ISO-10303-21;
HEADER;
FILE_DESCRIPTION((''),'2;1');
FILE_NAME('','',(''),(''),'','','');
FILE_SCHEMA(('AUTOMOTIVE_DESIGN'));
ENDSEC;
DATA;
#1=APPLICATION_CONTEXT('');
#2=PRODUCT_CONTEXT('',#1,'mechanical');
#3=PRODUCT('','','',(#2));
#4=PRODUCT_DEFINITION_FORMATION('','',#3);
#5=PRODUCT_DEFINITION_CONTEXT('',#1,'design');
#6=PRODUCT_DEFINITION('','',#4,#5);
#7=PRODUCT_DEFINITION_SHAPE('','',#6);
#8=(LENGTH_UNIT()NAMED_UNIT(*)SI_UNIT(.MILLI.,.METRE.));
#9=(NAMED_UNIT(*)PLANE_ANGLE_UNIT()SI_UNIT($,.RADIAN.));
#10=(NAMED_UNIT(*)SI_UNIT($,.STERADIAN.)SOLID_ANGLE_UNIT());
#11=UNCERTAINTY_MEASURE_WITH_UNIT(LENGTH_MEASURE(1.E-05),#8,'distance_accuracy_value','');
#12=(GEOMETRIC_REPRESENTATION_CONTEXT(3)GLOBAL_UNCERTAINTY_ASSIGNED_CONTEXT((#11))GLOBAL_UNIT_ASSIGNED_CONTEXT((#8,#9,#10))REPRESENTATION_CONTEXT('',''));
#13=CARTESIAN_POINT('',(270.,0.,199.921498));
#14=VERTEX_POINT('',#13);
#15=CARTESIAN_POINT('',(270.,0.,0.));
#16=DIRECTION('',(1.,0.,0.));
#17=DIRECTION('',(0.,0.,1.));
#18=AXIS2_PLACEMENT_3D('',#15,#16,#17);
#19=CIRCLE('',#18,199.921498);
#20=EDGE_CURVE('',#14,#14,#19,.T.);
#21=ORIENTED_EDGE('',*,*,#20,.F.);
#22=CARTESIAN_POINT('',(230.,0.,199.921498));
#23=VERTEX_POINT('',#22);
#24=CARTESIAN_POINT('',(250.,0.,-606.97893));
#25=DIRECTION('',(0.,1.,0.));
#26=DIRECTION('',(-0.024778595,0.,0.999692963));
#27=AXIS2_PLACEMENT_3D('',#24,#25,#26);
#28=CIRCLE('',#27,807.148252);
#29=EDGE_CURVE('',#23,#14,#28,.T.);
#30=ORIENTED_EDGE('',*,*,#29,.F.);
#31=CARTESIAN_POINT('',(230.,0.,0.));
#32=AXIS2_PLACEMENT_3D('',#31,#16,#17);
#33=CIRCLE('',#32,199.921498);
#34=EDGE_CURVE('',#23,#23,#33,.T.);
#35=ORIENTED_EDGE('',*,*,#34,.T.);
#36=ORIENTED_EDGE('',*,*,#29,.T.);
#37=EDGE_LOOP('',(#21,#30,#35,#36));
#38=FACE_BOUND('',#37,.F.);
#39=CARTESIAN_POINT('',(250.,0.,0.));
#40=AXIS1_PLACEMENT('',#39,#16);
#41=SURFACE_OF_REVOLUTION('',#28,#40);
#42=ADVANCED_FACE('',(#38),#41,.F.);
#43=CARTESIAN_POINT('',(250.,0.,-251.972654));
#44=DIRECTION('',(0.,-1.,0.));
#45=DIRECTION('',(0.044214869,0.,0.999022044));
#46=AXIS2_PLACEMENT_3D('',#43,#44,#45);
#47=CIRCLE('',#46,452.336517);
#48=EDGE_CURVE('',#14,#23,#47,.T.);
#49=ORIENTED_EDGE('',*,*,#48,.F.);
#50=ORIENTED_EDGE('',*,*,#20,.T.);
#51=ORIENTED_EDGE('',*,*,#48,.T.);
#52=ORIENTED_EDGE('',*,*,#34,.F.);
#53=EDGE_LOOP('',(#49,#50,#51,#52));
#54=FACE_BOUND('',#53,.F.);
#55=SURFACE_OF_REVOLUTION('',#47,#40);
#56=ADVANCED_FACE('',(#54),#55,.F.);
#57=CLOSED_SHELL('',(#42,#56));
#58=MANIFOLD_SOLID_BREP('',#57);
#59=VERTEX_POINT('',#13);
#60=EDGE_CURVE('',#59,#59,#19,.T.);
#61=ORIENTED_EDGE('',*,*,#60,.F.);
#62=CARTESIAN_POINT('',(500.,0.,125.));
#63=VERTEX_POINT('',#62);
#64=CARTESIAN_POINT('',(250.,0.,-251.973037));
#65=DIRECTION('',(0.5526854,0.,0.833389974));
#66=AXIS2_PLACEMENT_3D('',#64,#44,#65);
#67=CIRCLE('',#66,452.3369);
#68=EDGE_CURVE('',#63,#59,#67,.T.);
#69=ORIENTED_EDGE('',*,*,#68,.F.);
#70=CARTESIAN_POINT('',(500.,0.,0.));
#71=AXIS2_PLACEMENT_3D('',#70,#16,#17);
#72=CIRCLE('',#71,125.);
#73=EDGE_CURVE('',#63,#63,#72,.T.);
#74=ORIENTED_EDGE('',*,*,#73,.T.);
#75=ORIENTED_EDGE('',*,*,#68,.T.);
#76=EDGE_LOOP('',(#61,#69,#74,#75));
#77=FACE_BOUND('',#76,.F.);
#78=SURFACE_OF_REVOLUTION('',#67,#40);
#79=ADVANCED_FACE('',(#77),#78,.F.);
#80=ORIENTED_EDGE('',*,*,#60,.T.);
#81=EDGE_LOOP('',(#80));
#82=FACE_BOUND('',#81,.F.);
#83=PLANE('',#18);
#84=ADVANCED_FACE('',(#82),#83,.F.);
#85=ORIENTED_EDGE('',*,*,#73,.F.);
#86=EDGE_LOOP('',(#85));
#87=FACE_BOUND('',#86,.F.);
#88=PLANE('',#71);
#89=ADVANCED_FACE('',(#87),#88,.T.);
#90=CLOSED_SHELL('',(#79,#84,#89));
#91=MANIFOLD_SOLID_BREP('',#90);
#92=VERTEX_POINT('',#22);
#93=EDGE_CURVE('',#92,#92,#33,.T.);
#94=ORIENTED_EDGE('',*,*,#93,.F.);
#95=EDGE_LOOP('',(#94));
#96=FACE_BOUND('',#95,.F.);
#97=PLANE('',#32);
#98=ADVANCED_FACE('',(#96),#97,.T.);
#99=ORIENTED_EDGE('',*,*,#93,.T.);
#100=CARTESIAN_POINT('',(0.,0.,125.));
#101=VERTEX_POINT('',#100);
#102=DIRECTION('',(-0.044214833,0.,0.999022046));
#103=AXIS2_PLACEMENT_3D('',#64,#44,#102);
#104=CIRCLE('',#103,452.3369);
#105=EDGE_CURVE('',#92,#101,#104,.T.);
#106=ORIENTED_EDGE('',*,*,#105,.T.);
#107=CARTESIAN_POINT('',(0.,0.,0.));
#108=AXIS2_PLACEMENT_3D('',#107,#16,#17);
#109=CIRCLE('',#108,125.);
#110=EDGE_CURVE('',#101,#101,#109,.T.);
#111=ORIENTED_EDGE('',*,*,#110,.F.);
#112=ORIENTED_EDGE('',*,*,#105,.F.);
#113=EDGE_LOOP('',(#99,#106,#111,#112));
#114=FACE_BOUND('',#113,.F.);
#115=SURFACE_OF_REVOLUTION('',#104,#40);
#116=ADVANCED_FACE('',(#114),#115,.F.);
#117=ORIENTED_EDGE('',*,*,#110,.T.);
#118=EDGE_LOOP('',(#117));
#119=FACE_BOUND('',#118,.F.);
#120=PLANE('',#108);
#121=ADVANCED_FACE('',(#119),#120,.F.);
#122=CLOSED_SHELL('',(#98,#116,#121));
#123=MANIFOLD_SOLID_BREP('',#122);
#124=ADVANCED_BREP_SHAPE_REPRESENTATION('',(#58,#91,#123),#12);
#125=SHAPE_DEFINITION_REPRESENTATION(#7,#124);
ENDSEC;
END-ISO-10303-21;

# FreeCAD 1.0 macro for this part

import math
import FreeCAD as App
import Part
import Sketcher

doc = App.newDocument("Part")
params = doc.addObject("Spreadsheet::Sheet", "Params")
for row, (alias, value) in enumerate([
    ("sketch1_width", "230 mm"),
    ("sketch1_height", "125 mm"),
    ("revolution_angle", "360 deg"),
], start=1):
    params.set(f"A{row}", alias)
    params.set(f"B{row}", "=" + value)
    params.setAlias(f"B{row}", alias)

body = doc.addObject("PartDesign::Body", "Body")
body.AllowCompound = True

sketch1 = body.newObject("Sketcher::SketchObject", "Sketch")
sketch1.AttachmentSupport = (doc.getObject("XZ_Plane"), [""])
sketch1.MapMode = "FlatFace"
sketch1.addGeometry(Part.ArcOfCircle(Part.Circle(App.Vector(250, -607, 0), App.Vector(0, 0, 1), 807), math.radians(88.58), math.radians(91.42)), False)
sketch1.addGeometry(Part.ArcOfCircle(Part.Circle(App.Vector(250, -252, 0), App.Vector(0, 0, 1), 452), math.radians(87.47), math.radians(92.53)), False)
sketch1.addGeometry(Part.LineSegment(App.Vector(230, 0, 0), App.Vector(230, 200, 0)), False)
sketch1.addGeometry(Part.ArcOfCircle(Part.Circle(App.Vector(250, -252, 0), App.Vector(0, 0, 1), 452), math.radians(93), math.radians(124)), False)
sketch1.addGeometry(Part.LineSegment(App.Vector(0, 125, 0), App.Vector(0, 0, 0)), False)
sketch1.addGeometry(Part.LineSegment(App.Vector(0, 0, 0), App.Vector(230, 0, 0)), False)
sketch1.addGeometry(Part.LineSegment(App.Vector(500, 0, 0), App.Vector(500, 125, 0)), False)
sketch1.addGeometry(Part.ArcOfCircle(Part.Circle(App.Vector(250, -252, 0), App.Vector(0, 0, 1), 452), math.radians(56), math.radians(87)), False)
sketch1.addGeometry(Part.LineSegment(App.Vector(270, 200, 0), App.Vector(270, 0, 0)), False)
sketch1.addGeometry(Part.LineSegment(App.Vector(270, 0, 0), App.Vector(500, 0, 0)), False)
sketch1.addConstraint(Sketcher.Constraint("Coincident", 0, 1, 1, 1))
sketch1.addConstraint(Sketcher.Constraint("Coincident", 1, 2, 0, 2))
sketch1.addConstraint(Sketcher.Constraint("Coincident", 2, 2, 3, 1))
sketch1.addConstraint(Sketcher.Constraint("Coincident", 3, 2, 4, 1))
sketch1.addConstraint(Sketcher.Constraint("Coincident", 4, 2, 5, 1))
sketch1.addConstraint(Sketcher.Constraint("Coincident", 5, 2, 2, 1))
sketch1.addConstraint(Sketcher.Constraint("Coincident", 6, 2, 7, 1))
sketch1.addConstraint(Sketcher.Constraint("Coincident", 7, 2, 8, 1))
sketch1.addConstraint(Sketcher.Constraint("Coincident", 8, 2, 9, 1))
sketch1.addConstraint(Sketcher.Constraint("Coincident", 9, 2, 6, 1))
sketch1.addConstraint(Sketcher.Constraint("Vertical", 2))
sketch1.addConstraint(Sketcher.Constraint("Vertical", 4))
sketch1.addConstraint(Sketcher.Constraint("Horizontal", 5))
sketch1.addConstraint(Sketcher.Constraint("Vertical", 6))
sketch1.addConstraint(Sketcher.Constraint("Vertical", 8))
sketch1.addConstraint(Sketcher.Constraint("Horizontal", 9))
sketch1.addConstraint(Sketcher.Constraint("Coincident", 4, 2, -1, 1))
sketch1.addConstraint(Sketcher.Constraint("Coincident", 7, 3, 3, 3))
sketch1.addConstraint(Sketcher.Constraint("Coincident", 2, 2, 1, 2))
sketch1.addConstraint(Sketcher.Constraint("Coincident", 7, 2, 0, 1))
sketch1.addConstraint(Sketcher.Constraint("Equal", 3, 7))
sketch1.addConstraint(Sketcher.Constraint("PointOnObject", 8, 2, -1))
sketch1.addConstraint(Sketcher.Constraint("Horizontal", 0, 1, 2, 2))
sketch1.addConstraint(Sketcher.Constraint("Horizontal", 3, 2, 6, 2))
sketch1.addConstraint(Sketcher.Constraint("DistanceX", 5, 1, 5, 2, 230.0))
sketch1.addConstraint(Sketcher.Constraint("DistanceY", 4, 2, 4, 1, 125.0))
sketch1.addConstraint(Sketcher.Constraint("DistanceX", -1, 1, 0, 3, 250.0))
sketch1.addConstraint(Sketcher.Constraint("Radius", 3, 452.3369))
sketch1.addConstraint(Sketcher.Constraint("Radius", 0, 807.148252))
sketch1.addConstraint(Sketcher.Constraint("Radius", 1, 452.336517))
sketch1.setExpression("Constraints[24]", "Params.sketch1_width")
sketch1.setExpression("Constraints[25]", "Params.sketch1_height")
revolution = body.newObject("PartDesign::Revolution", "Revolution")
revolution.Profile = sketch1
revolution.ReferenceAxis = (sketch1, ["H_Axis"])
revolution.setExpression("Angle", "Params.revolution_angle")

doc.recompute()
